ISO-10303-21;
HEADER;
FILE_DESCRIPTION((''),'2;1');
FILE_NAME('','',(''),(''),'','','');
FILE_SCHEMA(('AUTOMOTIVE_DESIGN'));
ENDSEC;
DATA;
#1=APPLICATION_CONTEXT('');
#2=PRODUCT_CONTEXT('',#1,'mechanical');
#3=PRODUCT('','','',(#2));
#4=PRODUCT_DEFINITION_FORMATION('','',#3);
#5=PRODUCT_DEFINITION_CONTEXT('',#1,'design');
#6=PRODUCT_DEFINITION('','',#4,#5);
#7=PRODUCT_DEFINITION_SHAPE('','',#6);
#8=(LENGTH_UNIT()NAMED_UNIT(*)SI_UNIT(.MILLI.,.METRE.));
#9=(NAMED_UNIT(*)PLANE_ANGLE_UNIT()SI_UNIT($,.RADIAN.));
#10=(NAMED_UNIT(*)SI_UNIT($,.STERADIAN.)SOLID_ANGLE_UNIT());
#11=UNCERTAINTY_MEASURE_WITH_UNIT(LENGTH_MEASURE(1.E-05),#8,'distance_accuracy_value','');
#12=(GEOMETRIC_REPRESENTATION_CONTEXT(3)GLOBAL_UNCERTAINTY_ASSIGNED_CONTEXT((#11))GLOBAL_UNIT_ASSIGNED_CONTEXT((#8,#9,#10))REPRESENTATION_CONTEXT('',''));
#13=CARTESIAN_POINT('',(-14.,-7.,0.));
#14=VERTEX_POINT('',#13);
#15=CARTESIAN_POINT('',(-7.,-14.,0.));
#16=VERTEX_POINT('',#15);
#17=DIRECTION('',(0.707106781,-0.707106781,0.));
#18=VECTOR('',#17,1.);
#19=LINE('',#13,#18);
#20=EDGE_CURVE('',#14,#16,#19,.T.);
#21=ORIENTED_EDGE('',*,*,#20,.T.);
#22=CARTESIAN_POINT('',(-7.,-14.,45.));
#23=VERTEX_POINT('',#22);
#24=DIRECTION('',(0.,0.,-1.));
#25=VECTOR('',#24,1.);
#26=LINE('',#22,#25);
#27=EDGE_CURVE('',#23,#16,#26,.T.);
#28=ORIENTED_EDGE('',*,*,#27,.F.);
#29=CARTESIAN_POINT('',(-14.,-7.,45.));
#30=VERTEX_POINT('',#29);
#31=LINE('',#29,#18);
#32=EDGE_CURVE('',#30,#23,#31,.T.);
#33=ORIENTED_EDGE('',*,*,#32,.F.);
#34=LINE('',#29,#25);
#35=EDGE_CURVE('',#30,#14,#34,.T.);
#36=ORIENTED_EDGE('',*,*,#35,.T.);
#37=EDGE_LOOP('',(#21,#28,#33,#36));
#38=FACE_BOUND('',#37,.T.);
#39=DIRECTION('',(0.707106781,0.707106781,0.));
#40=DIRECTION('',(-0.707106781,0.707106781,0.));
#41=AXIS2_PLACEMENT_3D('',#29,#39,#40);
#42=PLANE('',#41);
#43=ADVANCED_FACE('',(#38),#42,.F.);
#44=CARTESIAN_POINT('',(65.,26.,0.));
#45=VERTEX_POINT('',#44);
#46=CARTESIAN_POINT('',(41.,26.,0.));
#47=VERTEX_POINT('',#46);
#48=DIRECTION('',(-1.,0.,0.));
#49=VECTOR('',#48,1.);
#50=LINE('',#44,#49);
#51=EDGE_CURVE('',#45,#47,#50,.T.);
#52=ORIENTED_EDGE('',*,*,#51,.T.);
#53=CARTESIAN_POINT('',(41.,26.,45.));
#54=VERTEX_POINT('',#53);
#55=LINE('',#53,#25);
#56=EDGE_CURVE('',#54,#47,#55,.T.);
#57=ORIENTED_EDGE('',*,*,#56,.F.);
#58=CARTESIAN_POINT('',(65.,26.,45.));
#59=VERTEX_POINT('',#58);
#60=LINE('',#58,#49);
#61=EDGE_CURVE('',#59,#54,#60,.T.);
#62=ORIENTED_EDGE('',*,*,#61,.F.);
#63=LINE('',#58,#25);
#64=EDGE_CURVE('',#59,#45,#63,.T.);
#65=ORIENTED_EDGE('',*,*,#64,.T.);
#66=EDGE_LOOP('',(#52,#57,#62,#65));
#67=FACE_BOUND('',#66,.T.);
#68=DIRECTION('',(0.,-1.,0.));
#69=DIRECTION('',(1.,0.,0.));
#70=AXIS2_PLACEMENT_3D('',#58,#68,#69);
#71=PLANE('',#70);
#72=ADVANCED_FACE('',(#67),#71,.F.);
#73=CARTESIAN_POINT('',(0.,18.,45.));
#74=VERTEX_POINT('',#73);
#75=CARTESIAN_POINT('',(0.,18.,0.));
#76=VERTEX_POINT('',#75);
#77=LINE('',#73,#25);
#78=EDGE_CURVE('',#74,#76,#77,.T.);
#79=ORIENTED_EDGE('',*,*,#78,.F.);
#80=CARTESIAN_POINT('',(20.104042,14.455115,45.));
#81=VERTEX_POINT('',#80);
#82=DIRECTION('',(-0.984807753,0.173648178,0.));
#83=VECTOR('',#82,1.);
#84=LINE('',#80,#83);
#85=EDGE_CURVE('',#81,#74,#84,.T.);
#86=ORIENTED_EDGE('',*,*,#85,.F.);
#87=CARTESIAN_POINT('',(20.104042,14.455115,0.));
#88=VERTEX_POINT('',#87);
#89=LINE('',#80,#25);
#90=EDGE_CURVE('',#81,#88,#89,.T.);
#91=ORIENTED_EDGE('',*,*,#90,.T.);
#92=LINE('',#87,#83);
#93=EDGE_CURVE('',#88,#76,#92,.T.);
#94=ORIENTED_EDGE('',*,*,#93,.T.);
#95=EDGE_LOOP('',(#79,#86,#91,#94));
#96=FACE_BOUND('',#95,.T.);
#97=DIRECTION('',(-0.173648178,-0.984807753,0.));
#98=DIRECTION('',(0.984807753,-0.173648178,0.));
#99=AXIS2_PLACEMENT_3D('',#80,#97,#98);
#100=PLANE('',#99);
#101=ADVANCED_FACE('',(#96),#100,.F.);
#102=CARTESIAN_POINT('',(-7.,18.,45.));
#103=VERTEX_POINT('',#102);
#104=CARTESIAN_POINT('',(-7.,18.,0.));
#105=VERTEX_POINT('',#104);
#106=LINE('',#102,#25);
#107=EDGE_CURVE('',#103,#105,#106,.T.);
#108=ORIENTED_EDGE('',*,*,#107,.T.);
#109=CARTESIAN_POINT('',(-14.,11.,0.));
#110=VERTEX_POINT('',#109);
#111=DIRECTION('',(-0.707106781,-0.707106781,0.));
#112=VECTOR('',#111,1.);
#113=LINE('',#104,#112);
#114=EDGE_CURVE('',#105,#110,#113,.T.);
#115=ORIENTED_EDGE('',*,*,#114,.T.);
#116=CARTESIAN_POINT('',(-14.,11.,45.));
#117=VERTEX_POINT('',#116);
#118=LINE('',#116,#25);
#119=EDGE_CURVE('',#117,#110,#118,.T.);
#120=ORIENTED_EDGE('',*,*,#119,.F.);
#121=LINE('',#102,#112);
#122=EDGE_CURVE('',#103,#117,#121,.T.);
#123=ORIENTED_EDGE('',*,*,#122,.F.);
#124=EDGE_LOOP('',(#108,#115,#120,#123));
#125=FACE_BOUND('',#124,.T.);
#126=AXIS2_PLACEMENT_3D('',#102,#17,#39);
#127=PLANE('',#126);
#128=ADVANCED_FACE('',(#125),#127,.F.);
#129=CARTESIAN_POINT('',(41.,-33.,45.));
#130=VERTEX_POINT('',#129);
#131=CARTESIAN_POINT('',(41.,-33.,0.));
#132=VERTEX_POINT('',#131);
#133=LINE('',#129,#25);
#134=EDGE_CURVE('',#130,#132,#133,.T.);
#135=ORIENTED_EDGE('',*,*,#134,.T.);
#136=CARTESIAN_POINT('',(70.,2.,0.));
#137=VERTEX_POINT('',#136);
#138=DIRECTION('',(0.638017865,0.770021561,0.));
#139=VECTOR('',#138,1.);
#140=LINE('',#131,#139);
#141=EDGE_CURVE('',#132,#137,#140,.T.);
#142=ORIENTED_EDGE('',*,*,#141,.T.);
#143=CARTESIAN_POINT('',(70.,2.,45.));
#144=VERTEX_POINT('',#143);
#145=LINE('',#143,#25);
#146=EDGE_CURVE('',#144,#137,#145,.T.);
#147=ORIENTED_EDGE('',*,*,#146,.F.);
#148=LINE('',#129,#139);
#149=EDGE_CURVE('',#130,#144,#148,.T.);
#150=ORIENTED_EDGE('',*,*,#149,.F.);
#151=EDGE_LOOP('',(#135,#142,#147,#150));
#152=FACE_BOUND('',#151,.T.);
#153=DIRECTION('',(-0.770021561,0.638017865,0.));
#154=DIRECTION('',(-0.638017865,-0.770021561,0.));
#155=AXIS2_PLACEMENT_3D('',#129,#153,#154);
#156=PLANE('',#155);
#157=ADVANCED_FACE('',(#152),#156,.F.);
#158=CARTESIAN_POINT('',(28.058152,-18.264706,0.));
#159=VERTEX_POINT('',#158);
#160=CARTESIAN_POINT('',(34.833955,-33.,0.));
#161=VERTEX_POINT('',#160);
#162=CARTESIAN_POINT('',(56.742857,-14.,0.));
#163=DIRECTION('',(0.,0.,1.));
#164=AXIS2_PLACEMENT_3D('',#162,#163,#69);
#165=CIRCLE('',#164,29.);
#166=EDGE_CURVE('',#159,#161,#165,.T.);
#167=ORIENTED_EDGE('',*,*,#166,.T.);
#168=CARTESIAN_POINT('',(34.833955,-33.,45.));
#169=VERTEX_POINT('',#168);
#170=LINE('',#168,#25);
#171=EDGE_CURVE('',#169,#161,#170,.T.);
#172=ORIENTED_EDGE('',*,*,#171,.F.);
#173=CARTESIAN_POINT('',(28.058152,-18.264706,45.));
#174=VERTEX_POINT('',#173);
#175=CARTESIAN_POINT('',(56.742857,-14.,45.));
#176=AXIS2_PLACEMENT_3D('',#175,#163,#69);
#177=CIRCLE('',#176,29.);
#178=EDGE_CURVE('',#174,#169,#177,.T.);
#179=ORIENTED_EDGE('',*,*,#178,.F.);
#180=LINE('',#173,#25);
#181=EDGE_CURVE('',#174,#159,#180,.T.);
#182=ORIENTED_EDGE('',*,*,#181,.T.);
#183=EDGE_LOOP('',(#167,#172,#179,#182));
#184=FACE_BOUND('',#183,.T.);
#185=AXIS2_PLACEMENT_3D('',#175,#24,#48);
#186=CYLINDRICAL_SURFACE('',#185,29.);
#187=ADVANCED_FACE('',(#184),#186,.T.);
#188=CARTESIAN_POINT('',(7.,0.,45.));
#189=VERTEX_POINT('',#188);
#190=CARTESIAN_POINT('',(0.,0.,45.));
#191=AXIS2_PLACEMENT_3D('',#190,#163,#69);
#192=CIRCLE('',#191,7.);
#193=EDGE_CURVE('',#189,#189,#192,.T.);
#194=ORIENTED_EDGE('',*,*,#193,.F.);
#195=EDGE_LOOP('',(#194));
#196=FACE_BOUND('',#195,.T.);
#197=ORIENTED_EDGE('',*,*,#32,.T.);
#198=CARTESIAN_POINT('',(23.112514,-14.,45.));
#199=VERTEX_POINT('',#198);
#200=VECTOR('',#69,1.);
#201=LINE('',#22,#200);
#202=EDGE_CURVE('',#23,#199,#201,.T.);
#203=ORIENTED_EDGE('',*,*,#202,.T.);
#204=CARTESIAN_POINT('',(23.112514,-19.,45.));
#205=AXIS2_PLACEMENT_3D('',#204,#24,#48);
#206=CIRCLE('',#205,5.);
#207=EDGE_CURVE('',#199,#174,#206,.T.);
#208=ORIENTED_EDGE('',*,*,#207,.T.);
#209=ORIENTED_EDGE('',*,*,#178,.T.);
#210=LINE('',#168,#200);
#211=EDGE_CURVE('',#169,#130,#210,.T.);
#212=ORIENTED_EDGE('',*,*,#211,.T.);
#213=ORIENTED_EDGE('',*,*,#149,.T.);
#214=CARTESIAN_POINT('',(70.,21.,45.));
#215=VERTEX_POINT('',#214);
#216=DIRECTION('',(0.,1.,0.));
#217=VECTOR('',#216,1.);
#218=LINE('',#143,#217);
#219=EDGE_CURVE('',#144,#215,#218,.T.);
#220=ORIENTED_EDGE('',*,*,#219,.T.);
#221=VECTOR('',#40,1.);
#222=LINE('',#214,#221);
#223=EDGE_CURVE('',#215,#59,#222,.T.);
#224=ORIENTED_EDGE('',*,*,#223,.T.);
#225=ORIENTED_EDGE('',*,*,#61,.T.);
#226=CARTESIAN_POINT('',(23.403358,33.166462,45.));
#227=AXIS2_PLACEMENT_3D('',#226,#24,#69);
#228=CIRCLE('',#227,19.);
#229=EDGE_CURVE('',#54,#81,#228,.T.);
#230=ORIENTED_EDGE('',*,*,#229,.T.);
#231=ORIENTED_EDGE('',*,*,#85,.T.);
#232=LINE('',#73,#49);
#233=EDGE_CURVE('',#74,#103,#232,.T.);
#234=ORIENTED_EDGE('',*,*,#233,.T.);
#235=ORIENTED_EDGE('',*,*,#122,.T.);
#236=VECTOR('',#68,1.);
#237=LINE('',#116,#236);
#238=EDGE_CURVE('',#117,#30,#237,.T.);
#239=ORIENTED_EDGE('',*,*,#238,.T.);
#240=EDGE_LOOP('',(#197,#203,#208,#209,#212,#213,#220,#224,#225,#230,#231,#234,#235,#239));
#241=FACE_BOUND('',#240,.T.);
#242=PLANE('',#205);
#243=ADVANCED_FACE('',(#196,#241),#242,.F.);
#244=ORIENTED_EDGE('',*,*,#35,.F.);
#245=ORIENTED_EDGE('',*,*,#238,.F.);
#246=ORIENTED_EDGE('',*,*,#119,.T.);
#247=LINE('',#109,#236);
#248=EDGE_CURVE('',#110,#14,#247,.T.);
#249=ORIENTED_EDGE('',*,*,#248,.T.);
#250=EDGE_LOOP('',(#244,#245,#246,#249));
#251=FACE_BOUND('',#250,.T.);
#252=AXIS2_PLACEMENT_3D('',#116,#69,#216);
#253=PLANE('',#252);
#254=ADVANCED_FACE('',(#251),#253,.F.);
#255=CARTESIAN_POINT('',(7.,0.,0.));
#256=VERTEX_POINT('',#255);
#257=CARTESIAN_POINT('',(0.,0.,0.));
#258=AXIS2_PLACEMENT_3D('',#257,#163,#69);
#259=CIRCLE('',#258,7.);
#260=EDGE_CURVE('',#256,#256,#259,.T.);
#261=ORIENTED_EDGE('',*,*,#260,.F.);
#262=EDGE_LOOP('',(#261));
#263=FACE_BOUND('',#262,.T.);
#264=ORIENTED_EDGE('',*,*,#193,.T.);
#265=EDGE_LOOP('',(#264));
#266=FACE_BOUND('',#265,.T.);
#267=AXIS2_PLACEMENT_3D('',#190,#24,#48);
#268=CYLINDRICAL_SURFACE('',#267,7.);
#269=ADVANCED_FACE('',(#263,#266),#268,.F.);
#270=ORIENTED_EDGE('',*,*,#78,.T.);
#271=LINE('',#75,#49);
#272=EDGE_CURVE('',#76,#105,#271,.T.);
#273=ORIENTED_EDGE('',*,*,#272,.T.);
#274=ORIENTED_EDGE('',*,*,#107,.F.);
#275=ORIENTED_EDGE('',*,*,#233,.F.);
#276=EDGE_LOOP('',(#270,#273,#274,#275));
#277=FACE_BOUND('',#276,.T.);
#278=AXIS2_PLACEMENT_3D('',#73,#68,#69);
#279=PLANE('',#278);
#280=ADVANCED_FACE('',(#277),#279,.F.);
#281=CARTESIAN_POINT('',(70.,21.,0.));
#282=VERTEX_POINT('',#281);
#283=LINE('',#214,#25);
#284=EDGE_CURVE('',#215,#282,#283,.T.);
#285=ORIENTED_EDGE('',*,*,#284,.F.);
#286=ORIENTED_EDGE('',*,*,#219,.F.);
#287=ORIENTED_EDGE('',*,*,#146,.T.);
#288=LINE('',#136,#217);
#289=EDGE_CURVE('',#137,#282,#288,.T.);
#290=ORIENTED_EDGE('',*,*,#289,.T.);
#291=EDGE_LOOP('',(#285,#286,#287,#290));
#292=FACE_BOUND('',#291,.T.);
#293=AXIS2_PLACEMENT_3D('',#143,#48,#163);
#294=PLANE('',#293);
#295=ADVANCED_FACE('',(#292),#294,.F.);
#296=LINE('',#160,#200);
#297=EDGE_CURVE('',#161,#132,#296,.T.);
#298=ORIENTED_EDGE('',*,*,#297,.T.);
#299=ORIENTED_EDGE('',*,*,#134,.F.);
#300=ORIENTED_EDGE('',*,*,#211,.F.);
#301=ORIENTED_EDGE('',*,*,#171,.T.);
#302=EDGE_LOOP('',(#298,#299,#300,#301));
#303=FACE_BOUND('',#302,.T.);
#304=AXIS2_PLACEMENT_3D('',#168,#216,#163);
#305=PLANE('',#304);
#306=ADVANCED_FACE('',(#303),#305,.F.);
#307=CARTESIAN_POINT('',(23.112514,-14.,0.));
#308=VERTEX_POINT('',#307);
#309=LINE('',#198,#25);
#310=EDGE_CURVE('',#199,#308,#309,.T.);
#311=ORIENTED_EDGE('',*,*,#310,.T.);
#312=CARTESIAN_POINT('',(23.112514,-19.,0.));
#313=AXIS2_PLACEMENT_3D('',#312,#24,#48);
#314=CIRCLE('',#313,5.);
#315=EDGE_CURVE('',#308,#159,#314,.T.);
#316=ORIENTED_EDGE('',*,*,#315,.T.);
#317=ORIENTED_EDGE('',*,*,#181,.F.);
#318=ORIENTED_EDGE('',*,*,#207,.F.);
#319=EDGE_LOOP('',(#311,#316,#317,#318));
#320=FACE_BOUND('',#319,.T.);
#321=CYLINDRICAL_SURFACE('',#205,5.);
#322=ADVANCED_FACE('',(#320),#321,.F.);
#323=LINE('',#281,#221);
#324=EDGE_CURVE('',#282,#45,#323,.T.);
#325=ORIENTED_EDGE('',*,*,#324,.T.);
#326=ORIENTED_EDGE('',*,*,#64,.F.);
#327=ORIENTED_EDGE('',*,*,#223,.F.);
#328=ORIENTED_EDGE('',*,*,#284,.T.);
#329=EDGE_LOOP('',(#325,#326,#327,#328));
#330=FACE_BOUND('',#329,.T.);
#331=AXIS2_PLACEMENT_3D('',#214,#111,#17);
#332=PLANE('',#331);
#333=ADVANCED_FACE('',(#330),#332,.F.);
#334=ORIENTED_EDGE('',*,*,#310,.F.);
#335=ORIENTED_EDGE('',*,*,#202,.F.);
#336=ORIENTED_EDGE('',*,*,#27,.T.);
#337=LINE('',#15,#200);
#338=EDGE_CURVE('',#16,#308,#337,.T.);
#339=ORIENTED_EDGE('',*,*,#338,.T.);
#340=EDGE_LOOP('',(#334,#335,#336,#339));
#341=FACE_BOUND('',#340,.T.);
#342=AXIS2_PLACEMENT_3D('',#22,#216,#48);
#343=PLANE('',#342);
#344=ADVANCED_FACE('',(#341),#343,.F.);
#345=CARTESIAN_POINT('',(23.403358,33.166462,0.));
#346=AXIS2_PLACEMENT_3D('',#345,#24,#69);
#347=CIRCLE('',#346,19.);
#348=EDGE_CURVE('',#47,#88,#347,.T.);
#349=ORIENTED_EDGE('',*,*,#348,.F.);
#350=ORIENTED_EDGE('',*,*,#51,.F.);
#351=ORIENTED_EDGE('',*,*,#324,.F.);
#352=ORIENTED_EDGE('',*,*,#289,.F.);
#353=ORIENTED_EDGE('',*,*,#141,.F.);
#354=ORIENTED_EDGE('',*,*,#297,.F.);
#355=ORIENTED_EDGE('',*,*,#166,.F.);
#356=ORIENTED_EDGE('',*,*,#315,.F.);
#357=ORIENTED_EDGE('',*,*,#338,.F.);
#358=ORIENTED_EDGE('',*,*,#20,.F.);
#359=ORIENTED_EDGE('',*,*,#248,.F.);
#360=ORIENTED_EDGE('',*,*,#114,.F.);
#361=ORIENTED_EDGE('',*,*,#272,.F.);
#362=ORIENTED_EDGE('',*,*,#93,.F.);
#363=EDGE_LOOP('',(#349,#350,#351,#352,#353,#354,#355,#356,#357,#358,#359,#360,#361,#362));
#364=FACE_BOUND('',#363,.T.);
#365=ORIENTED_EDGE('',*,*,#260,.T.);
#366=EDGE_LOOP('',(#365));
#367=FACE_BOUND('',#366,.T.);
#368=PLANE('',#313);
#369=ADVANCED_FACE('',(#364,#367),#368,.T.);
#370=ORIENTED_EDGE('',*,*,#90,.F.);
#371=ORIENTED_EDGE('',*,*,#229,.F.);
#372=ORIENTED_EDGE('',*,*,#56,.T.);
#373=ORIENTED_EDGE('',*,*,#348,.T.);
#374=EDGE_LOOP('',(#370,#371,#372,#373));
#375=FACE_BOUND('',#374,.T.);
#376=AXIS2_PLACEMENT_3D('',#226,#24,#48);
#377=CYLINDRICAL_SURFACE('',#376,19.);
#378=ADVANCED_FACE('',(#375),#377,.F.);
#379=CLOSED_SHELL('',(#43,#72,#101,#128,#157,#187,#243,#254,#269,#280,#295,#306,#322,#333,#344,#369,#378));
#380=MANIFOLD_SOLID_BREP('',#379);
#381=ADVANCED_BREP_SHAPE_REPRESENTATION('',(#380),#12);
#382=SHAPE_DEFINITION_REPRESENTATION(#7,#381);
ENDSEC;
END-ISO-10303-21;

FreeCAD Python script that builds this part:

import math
import FreeCAD as App
import Part
import Sketcher

V = App.Vector
Q = App.Units.Quantity

doc = App.newDocument("Part")
body = doc.addObject("PartDesign::Body", "Body")

# Sketch on XY plane
sketch1 = body.newObject("Sketcher::SketchObject", "Sketch")
sketch1.AttachmentSupport = (doc.getObject("XY_Plane"), [""])
sketch1.MapMode = "FlatFace"
sketch1.addGeometry([
    Part.LineSegment(V(-7, -14, 0), V(23, -14, 0)),  # 0
    Part.ArcOfCircle(Part.Circle(V(23, -19, 0), V(0, 0, 1), 5), math.radians(8), math.radians(90)),  # 1
    Part.ArcOfCircle(Part.Circle(V(57, -14, 0), V(0, 0, 1), 29), math.radians(-172), math.radians(-139)),  # 2
    Part.LineSegment(V(35, -33, 0), V(41, -33, 0)),  # 3
    Part.LineSegment(V(41, -33, 0), V(70, 2, 0)),  # 4
    Part.LineSegment(V(70, 2, 0), V(70, 21, 0)),  # 5
    Part.LineSegment(V(70, 21, 0), V(65, 26, 0)),  # 6
    Part.LineSegment(V(65, 26, 0), V(41, 26, 0)),  # 7
    Part.ArcOfCircle(Part.Circle(V(23, 33, 0), V(0, 0, 1), 19), math.radians(-100), math.radians(-22)),  # 8
    Part.LineSegment(V(20, 14, 0), V(0, 18, 0)),  # 9
    Part.LineSegment(V(0, 18, 0), V(-7, 18, 0)),  # 10
    Part.LineSegment(V(-7, 18, 0), V(-14, 11, 0)),  # 11
    Part.LineSegment(V(-14, 11, 0), V(-14, -7, 0)),  # 12
    Part.LineSegment(V(-14, -7, 0), V(-7, -14, 0)),  # 13
    Part.Circle(V(0, 0, 0), V(0, 0, 1), 7),  # 14
], False)
sketch1.addConstraint([
    Sketcher.Constraint("Tangent", 0, 2, 1, 2),
    Sketcher.Constraint("Tangent", 1, 1, 2, 1),
    Sketcher.Constraint("Coincident", 2, 2, 3, 1),
    Sketcher.Constraint("Coincident", 3, 2, 4, 1),
    Sketcher.Constraint("Coincident", 4, 2, 5, 1),
    Sketcher.Constraint("Coincident", 5, 2, 6, 1),
    Sketcher.Constraint("Coincident", 6, 2, 7, 1),
    Sketcher.Constraint("Coincident", 7, 2, 8, 2),
    Sketcher.Constraint("Tangent", 8, 1, 9, 1),
    Sketcher.Constraint("Coincident", 9, 2, 10, 1),
    Sketcher.Constraint("Coincident", 10, 2, 11, 1),
    Sketcher.Constraint("Coincident", 11, 2, 12, 1),
    Sketcher.Constraint("Coincident", 12, 2, 13, 1),
    Sketcher.Constraint("Coincident", 13, 2, 0, 1),
    Sketcher.Constraint("Horizontal", 0),
    Sketcher.Constraint("Horizontal", 3),
    Sketcher.Constraint("Vertical", 5),
    Sketcher.Constraint("Horizontal", 7),
    Sketcher.Constraint("Horizontal", 10),
    Sketcher.Constraint("Vertical", 12),
    Sketcher.Constraint("Coincident", 14, 3, -1, 1),
    Sketcher.Constraint("PointOnObject", 9, 2, -2),
    Sketcher.Constraint("Perpendicular", 6, 11),
    Sketcher.Constraint("Perpendicular", 11, 13),
    Sketcher.Constraint("Horizontal", 2, 3, 0, 2),
    Sketcher.Constraint("Vertical", 3, 2, 7, 2),
    Sketcher.Constraint("Vertical", 10, 2, 13, 2),
    Sketcher.Constraint("Equal", 11, 13),
    Sketcher.Constraint("Diameter", 14, 14.0),
    Sketcher.Constraint("Radius", 1, 5.0),
    Sketcher.Constraint("Radius", 2, 29.0),
    Sketcher.Constraint("Radius", 8, 19.0),
    Sketcher.Constraint("DistanceX", 7, 2, 7, 1, 24.0),
    Sketcher.Constraint("DistanceX", 10, 2, 10, 1, 7.0),
    Sketcher.Constraint("DistanceY", 5, 1, 5, 2, 19.0),
    Sketcher.Constraint("DistanceY", 12, 2, 12, 1, 18.0),
    Sketcher.Constraint("Angle", 9, Q("170 deg")),
    Sketcher.Constraint("DistanceY", 1, 3, -1, 1, 19.0),
    Sketcher.Constraint("DistanceY", 2, 2, -1, 1, 33.0),
    Sketcher.Constraint("DistanceX", -1, 1, 3, 2, 41.0),
    Sketcher.Constraint("DistanceX", -1, 1, 4, 2, 70.0),
    Sketcher.Constraint("DistanceY", -1, 1, 4, 2, 2.0),
    Sketcher.Constraint("DistanceY", -1, 1, 9, 2, 18.0),
    Sketcher.Constraint("DistanceX", 8, 3, 2, 3, 33.339499),
])
pad1 = body.newObject("PartDesign::Pad", "Pad")
pad1.Profile = sketch1
pad1.Length = 45

doc.recompute()
